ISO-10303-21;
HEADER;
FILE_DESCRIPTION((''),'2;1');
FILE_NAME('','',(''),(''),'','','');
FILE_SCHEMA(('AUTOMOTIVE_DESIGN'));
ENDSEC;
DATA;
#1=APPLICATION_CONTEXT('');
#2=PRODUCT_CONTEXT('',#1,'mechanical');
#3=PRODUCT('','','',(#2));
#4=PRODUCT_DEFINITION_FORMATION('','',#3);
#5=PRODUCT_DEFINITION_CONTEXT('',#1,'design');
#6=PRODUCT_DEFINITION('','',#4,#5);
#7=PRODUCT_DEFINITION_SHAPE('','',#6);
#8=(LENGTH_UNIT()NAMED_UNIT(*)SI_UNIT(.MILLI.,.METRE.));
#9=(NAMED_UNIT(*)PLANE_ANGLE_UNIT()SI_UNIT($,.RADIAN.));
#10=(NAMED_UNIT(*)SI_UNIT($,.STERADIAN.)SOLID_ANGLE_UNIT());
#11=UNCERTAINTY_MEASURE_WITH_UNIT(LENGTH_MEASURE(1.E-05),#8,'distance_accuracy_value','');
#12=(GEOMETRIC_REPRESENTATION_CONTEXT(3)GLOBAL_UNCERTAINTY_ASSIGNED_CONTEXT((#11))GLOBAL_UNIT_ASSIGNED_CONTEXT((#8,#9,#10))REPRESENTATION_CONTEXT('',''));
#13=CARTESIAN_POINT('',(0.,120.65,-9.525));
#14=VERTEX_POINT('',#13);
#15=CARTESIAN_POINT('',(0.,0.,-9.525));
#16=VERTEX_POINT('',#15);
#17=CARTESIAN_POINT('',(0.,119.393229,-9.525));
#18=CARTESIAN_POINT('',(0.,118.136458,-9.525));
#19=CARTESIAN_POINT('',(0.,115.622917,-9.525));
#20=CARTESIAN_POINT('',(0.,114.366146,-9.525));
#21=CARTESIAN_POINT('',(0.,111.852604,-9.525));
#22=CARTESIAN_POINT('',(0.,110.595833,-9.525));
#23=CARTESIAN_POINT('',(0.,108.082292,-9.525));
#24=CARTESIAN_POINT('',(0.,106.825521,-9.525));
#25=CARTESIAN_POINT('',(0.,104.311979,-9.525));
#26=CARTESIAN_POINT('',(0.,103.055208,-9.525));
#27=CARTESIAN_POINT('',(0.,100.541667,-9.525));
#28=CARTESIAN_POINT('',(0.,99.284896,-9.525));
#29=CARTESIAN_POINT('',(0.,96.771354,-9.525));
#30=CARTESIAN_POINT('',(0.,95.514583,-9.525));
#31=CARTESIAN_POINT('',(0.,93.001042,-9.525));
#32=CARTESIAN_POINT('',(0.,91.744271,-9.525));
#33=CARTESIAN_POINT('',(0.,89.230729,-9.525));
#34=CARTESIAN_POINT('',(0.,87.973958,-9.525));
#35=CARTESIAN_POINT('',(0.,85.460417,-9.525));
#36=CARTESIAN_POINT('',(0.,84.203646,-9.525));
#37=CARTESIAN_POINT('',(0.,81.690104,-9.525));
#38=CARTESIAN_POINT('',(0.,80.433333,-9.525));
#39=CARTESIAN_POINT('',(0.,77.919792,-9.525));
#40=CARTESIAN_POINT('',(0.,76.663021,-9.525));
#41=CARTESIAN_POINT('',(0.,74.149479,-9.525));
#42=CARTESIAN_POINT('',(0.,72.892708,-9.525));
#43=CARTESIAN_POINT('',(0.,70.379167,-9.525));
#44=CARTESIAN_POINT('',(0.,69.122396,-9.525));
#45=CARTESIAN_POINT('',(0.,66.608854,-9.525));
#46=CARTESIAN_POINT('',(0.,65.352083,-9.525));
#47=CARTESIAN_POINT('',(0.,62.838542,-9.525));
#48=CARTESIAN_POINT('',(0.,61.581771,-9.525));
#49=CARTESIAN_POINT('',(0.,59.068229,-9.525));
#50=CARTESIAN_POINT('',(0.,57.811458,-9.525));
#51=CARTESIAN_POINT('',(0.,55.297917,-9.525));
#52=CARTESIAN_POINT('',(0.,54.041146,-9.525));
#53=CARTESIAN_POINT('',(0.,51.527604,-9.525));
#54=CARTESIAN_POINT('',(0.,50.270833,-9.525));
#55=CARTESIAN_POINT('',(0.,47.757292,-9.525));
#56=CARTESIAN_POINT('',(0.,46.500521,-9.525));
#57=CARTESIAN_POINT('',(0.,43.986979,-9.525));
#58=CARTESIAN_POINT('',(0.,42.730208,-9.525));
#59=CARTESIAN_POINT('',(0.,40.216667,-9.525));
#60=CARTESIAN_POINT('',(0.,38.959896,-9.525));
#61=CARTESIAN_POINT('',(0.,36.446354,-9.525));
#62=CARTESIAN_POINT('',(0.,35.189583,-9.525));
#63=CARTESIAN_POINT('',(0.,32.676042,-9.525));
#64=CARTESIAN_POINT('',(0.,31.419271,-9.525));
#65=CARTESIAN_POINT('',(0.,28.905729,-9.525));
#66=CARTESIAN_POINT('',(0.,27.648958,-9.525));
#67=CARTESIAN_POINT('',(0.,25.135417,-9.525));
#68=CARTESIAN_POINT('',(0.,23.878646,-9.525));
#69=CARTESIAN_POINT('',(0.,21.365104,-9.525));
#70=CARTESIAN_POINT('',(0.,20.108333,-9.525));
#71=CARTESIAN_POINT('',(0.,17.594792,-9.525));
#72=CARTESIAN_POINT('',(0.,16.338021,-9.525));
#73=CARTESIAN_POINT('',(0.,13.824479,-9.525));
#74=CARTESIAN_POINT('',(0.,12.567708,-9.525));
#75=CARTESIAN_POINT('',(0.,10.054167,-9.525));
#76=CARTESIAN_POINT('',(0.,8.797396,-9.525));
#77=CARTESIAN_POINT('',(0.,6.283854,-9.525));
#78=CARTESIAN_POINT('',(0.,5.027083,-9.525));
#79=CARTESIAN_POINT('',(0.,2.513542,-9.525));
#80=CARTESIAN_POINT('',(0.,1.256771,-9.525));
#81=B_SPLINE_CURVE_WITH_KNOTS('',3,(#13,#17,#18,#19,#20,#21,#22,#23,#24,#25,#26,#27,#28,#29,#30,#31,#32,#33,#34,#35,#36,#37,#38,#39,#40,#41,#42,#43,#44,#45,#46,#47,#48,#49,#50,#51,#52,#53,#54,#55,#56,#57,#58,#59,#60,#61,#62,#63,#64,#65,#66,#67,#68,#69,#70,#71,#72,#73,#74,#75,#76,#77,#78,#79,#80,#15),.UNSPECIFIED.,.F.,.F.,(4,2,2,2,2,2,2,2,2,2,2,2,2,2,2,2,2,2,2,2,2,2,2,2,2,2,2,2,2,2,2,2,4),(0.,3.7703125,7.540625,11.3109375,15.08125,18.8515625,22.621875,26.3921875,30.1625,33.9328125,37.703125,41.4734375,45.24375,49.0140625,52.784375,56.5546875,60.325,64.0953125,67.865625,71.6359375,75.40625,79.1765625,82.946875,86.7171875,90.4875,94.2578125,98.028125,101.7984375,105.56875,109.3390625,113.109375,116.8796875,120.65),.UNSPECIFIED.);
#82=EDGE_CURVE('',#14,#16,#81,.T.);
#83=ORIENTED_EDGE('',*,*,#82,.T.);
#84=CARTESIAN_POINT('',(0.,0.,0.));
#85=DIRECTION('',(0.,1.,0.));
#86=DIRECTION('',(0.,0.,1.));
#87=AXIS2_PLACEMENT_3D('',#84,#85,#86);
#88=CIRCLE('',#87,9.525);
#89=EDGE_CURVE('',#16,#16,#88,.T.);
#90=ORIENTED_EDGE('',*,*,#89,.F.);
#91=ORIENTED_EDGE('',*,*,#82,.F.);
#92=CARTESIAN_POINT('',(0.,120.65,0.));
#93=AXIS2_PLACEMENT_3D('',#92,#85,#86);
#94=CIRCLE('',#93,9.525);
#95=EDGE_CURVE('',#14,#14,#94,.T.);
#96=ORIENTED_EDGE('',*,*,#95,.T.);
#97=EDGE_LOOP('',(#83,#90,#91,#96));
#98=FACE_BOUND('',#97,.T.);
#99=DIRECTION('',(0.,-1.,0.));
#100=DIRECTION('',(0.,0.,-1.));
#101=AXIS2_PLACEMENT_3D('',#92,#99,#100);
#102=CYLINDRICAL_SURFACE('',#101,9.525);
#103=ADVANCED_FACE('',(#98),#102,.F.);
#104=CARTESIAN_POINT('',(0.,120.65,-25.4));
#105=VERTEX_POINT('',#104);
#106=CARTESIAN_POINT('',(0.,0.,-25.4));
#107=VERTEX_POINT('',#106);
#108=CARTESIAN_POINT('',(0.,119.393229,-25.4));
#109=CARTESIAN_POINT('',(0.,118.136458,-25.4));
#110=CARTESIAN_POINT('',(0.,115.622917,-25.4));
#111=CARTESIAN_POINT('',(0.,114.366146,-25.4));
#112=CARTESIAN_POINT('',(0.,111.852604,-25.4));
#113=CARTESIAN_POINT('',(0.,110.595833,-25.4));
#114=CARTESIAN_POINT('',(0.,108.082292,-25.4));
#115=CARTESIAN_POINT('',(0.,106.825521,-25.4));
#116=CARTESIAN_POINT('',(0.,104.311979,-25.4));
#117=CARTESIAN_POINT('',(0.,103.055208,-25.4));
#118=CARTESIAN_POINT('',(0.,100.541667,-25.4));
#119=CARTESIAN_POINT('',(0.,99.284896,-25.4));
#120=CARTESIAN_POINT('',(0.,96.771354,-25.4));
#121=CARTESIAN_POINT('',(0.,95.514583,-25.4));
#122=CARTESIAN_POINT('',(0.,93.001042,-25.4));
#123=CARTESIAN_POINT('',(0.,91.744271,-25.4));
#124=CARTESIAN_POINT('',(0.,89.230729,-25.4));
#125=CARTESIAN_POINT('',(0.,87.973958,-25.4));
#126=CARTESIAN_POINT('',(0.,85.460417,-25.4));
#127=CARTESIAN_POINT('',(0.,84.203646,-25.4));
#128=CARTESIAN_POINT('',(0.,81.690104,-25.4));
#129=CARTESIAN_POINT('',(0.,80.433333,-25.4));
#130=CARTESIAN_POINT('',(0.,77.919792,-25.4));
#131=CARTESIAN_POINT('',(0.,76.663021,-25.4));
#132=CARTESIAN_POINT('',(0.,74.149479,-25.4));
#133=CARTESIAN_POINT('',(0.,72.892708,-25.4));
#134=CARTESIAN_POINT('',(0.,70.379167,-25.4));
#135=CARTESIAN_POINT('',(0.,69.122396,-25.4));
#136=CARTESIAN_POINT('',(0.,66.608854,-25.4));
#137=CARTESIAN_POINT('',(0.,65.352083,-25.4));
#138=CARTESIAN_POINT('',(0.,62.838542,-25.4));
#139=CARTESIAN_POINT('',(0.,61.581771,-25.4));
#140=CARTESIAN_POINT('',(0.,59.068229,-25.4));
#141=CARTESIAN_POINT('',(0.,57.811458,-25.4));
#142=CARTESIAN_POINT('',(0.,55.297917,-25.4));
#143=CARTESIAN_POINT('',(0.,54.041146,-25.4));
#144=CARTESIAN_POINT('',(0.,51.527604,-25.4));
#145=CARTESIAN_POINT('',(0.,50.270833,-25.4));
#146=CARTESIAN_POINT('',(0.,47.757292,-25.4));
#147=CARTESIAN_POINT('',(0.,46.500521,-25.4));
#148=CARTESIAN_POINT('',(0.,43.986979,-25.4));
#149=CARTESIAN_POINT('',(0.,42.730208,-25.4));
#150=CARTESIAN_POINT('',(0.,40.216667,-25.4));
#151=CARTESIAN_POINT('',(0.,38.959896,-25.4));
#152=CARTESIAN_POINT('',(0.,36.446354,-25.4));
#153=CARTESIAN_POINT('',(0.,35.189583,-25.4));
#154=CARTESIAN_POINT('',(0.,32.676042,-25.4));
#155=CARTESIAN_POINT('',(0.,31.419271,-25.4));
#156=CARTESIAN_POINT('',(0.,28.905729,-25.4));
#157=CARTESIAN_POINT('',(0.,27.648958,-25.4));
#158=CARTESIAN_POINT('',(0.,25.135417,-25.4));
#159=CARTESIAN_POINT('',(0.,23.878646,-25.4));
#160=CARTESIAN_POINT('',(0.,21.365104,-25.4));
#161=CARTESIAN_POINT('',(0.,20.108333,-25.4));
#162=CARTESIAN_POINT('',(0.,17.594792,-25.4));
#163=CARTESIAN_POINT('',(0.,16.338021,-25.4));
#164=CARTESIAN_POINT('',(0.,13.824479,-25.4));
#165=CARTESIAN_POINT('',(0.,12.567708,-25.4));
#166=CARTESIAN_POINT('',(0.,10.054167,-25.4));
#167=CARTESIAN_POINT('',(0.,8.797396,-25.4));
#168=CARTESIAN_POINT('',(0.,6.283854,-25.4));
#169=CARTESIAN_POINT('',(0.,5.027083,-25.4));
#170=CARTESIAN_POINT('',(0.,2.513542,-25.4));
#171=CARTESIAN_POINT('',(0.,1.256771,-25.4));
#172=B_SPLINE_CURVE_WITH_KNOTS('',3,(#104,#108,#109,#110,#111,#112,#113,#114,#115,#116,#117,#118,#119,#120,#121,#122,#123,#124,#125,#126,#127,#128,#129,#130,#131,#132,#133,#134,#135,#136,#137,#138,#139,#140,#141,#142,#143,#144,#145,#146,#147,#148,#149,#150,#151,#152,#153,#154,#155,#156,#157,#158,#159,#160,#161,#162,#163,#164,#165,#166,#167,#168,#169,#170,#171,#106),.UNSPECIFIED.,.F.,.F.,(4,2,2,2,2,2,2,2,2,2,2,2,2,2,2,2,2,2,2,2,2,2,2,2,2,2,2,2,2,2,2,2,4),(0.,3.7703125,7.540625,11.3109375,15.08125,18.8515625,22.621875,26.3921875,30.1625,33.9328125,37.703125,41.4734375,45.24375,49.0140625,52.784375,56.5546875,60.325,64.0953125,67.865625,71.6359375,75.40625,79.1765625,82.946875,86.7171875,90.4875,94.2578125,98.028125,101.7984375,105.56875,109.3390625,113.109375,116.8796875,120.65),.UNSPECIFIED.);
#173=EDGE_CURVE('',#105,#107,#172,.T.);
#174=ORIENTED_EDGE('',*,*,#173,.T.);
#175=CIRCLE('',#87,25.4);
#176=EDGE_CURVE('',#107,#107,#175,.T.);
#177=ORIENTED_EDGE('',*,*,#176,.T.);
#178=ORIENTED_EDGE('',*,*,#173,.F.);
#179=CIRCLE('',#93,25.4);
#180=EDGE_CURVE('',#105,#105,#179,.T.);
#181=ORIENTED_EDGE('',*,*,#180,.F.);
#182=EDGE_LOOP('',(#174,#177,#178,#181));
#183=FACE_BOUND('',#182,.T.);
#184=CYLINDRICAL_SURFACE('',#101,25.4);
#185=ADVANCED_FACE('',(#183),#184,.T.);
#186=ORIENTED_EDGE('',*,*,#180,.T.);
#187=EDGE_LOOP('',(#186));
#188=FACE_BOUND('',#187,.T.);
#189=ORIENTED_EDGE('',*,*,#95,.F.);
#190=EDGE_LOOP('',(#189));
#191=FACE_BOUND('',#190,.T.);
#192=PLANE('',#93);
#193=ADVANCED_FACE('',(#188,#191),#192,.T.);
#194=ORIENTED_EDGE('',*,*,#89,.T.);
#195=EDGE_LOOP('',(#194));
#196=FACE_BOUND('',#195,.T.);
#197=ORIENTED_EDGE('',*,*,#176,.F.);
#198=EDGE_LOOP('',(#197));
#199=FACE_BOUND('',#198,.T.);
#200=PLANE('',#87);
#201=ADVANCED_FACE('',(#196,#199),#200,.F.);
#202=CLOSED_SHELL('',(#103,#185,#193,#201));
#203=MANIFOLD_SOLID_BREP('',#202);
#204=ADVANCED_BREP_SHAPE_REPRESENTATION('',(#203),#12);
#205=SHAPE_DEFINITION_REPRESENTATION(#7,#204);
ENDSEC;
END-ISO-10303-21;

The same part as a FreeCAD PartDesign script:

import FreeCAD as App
import Part
import Sketcher

V = App.Vector
Q = App.Units.Quantity

doc = App.newDocument("Part")
params = doc.addObject("Spreadsheet::Sheet", "Params")
for row, (alias, value) in enumerate([
    ("sketch1_diameter", "2 in"),
    ("sketch1_diameter2", "0.75 in"),
    ("pad1_length", "4.75 in"),
], start=1):
    params.set(f"A{row}", alias)
    params.set(f"B{row}", "=" + value)
    params.setAlias(f"B{row}", alias)

body = doc.addObject("PartDesign::Body", "Body")

# Sketch on XZ plane
sketch1 = body.newObject("Sketcher::SketchObject", "Sketch")
sketch1.AttachmentSupport = (doc.getObject("XZ_Plane"), [""])
sketch1.MapMode = "FlatFace"
sketch1.addGeometry(Part.Circle(V(0, 0, 0), V(0, 0, 1), 25), False)
sketch1.addGeometry(Part.Circle(V(0, 0, 0), V(0, 0, 1), 10), False)
sketch1.addConstraint(Sketcher.Constraint("Coincident", 0, 3, -1, 1))
sketch1.addConstraint(Sketcher.Constraint("Coincident", 1, 3, -1, 1))
sketch1.addConstraint(Sketcher.Constraint("Diameter", 0, Q("2 in")))
sketch1.addConstraint(Sketcher.Constraint("Diameter", 1, Q("0.75 in")))
sketch1.setExpression("Constraints[2]", "Params.sketch1_diameter")
sketch1.setExpression("Constraints[3]", "Params.sketch1_diameter2")
pad1 = body.newObject("PartDesign::Pad", "Pad")
pad1.Profile = sketch1
pad1.setExpression("Length", "Params.pad1_length")
pad1.Reversed = True

doc.recompute()
